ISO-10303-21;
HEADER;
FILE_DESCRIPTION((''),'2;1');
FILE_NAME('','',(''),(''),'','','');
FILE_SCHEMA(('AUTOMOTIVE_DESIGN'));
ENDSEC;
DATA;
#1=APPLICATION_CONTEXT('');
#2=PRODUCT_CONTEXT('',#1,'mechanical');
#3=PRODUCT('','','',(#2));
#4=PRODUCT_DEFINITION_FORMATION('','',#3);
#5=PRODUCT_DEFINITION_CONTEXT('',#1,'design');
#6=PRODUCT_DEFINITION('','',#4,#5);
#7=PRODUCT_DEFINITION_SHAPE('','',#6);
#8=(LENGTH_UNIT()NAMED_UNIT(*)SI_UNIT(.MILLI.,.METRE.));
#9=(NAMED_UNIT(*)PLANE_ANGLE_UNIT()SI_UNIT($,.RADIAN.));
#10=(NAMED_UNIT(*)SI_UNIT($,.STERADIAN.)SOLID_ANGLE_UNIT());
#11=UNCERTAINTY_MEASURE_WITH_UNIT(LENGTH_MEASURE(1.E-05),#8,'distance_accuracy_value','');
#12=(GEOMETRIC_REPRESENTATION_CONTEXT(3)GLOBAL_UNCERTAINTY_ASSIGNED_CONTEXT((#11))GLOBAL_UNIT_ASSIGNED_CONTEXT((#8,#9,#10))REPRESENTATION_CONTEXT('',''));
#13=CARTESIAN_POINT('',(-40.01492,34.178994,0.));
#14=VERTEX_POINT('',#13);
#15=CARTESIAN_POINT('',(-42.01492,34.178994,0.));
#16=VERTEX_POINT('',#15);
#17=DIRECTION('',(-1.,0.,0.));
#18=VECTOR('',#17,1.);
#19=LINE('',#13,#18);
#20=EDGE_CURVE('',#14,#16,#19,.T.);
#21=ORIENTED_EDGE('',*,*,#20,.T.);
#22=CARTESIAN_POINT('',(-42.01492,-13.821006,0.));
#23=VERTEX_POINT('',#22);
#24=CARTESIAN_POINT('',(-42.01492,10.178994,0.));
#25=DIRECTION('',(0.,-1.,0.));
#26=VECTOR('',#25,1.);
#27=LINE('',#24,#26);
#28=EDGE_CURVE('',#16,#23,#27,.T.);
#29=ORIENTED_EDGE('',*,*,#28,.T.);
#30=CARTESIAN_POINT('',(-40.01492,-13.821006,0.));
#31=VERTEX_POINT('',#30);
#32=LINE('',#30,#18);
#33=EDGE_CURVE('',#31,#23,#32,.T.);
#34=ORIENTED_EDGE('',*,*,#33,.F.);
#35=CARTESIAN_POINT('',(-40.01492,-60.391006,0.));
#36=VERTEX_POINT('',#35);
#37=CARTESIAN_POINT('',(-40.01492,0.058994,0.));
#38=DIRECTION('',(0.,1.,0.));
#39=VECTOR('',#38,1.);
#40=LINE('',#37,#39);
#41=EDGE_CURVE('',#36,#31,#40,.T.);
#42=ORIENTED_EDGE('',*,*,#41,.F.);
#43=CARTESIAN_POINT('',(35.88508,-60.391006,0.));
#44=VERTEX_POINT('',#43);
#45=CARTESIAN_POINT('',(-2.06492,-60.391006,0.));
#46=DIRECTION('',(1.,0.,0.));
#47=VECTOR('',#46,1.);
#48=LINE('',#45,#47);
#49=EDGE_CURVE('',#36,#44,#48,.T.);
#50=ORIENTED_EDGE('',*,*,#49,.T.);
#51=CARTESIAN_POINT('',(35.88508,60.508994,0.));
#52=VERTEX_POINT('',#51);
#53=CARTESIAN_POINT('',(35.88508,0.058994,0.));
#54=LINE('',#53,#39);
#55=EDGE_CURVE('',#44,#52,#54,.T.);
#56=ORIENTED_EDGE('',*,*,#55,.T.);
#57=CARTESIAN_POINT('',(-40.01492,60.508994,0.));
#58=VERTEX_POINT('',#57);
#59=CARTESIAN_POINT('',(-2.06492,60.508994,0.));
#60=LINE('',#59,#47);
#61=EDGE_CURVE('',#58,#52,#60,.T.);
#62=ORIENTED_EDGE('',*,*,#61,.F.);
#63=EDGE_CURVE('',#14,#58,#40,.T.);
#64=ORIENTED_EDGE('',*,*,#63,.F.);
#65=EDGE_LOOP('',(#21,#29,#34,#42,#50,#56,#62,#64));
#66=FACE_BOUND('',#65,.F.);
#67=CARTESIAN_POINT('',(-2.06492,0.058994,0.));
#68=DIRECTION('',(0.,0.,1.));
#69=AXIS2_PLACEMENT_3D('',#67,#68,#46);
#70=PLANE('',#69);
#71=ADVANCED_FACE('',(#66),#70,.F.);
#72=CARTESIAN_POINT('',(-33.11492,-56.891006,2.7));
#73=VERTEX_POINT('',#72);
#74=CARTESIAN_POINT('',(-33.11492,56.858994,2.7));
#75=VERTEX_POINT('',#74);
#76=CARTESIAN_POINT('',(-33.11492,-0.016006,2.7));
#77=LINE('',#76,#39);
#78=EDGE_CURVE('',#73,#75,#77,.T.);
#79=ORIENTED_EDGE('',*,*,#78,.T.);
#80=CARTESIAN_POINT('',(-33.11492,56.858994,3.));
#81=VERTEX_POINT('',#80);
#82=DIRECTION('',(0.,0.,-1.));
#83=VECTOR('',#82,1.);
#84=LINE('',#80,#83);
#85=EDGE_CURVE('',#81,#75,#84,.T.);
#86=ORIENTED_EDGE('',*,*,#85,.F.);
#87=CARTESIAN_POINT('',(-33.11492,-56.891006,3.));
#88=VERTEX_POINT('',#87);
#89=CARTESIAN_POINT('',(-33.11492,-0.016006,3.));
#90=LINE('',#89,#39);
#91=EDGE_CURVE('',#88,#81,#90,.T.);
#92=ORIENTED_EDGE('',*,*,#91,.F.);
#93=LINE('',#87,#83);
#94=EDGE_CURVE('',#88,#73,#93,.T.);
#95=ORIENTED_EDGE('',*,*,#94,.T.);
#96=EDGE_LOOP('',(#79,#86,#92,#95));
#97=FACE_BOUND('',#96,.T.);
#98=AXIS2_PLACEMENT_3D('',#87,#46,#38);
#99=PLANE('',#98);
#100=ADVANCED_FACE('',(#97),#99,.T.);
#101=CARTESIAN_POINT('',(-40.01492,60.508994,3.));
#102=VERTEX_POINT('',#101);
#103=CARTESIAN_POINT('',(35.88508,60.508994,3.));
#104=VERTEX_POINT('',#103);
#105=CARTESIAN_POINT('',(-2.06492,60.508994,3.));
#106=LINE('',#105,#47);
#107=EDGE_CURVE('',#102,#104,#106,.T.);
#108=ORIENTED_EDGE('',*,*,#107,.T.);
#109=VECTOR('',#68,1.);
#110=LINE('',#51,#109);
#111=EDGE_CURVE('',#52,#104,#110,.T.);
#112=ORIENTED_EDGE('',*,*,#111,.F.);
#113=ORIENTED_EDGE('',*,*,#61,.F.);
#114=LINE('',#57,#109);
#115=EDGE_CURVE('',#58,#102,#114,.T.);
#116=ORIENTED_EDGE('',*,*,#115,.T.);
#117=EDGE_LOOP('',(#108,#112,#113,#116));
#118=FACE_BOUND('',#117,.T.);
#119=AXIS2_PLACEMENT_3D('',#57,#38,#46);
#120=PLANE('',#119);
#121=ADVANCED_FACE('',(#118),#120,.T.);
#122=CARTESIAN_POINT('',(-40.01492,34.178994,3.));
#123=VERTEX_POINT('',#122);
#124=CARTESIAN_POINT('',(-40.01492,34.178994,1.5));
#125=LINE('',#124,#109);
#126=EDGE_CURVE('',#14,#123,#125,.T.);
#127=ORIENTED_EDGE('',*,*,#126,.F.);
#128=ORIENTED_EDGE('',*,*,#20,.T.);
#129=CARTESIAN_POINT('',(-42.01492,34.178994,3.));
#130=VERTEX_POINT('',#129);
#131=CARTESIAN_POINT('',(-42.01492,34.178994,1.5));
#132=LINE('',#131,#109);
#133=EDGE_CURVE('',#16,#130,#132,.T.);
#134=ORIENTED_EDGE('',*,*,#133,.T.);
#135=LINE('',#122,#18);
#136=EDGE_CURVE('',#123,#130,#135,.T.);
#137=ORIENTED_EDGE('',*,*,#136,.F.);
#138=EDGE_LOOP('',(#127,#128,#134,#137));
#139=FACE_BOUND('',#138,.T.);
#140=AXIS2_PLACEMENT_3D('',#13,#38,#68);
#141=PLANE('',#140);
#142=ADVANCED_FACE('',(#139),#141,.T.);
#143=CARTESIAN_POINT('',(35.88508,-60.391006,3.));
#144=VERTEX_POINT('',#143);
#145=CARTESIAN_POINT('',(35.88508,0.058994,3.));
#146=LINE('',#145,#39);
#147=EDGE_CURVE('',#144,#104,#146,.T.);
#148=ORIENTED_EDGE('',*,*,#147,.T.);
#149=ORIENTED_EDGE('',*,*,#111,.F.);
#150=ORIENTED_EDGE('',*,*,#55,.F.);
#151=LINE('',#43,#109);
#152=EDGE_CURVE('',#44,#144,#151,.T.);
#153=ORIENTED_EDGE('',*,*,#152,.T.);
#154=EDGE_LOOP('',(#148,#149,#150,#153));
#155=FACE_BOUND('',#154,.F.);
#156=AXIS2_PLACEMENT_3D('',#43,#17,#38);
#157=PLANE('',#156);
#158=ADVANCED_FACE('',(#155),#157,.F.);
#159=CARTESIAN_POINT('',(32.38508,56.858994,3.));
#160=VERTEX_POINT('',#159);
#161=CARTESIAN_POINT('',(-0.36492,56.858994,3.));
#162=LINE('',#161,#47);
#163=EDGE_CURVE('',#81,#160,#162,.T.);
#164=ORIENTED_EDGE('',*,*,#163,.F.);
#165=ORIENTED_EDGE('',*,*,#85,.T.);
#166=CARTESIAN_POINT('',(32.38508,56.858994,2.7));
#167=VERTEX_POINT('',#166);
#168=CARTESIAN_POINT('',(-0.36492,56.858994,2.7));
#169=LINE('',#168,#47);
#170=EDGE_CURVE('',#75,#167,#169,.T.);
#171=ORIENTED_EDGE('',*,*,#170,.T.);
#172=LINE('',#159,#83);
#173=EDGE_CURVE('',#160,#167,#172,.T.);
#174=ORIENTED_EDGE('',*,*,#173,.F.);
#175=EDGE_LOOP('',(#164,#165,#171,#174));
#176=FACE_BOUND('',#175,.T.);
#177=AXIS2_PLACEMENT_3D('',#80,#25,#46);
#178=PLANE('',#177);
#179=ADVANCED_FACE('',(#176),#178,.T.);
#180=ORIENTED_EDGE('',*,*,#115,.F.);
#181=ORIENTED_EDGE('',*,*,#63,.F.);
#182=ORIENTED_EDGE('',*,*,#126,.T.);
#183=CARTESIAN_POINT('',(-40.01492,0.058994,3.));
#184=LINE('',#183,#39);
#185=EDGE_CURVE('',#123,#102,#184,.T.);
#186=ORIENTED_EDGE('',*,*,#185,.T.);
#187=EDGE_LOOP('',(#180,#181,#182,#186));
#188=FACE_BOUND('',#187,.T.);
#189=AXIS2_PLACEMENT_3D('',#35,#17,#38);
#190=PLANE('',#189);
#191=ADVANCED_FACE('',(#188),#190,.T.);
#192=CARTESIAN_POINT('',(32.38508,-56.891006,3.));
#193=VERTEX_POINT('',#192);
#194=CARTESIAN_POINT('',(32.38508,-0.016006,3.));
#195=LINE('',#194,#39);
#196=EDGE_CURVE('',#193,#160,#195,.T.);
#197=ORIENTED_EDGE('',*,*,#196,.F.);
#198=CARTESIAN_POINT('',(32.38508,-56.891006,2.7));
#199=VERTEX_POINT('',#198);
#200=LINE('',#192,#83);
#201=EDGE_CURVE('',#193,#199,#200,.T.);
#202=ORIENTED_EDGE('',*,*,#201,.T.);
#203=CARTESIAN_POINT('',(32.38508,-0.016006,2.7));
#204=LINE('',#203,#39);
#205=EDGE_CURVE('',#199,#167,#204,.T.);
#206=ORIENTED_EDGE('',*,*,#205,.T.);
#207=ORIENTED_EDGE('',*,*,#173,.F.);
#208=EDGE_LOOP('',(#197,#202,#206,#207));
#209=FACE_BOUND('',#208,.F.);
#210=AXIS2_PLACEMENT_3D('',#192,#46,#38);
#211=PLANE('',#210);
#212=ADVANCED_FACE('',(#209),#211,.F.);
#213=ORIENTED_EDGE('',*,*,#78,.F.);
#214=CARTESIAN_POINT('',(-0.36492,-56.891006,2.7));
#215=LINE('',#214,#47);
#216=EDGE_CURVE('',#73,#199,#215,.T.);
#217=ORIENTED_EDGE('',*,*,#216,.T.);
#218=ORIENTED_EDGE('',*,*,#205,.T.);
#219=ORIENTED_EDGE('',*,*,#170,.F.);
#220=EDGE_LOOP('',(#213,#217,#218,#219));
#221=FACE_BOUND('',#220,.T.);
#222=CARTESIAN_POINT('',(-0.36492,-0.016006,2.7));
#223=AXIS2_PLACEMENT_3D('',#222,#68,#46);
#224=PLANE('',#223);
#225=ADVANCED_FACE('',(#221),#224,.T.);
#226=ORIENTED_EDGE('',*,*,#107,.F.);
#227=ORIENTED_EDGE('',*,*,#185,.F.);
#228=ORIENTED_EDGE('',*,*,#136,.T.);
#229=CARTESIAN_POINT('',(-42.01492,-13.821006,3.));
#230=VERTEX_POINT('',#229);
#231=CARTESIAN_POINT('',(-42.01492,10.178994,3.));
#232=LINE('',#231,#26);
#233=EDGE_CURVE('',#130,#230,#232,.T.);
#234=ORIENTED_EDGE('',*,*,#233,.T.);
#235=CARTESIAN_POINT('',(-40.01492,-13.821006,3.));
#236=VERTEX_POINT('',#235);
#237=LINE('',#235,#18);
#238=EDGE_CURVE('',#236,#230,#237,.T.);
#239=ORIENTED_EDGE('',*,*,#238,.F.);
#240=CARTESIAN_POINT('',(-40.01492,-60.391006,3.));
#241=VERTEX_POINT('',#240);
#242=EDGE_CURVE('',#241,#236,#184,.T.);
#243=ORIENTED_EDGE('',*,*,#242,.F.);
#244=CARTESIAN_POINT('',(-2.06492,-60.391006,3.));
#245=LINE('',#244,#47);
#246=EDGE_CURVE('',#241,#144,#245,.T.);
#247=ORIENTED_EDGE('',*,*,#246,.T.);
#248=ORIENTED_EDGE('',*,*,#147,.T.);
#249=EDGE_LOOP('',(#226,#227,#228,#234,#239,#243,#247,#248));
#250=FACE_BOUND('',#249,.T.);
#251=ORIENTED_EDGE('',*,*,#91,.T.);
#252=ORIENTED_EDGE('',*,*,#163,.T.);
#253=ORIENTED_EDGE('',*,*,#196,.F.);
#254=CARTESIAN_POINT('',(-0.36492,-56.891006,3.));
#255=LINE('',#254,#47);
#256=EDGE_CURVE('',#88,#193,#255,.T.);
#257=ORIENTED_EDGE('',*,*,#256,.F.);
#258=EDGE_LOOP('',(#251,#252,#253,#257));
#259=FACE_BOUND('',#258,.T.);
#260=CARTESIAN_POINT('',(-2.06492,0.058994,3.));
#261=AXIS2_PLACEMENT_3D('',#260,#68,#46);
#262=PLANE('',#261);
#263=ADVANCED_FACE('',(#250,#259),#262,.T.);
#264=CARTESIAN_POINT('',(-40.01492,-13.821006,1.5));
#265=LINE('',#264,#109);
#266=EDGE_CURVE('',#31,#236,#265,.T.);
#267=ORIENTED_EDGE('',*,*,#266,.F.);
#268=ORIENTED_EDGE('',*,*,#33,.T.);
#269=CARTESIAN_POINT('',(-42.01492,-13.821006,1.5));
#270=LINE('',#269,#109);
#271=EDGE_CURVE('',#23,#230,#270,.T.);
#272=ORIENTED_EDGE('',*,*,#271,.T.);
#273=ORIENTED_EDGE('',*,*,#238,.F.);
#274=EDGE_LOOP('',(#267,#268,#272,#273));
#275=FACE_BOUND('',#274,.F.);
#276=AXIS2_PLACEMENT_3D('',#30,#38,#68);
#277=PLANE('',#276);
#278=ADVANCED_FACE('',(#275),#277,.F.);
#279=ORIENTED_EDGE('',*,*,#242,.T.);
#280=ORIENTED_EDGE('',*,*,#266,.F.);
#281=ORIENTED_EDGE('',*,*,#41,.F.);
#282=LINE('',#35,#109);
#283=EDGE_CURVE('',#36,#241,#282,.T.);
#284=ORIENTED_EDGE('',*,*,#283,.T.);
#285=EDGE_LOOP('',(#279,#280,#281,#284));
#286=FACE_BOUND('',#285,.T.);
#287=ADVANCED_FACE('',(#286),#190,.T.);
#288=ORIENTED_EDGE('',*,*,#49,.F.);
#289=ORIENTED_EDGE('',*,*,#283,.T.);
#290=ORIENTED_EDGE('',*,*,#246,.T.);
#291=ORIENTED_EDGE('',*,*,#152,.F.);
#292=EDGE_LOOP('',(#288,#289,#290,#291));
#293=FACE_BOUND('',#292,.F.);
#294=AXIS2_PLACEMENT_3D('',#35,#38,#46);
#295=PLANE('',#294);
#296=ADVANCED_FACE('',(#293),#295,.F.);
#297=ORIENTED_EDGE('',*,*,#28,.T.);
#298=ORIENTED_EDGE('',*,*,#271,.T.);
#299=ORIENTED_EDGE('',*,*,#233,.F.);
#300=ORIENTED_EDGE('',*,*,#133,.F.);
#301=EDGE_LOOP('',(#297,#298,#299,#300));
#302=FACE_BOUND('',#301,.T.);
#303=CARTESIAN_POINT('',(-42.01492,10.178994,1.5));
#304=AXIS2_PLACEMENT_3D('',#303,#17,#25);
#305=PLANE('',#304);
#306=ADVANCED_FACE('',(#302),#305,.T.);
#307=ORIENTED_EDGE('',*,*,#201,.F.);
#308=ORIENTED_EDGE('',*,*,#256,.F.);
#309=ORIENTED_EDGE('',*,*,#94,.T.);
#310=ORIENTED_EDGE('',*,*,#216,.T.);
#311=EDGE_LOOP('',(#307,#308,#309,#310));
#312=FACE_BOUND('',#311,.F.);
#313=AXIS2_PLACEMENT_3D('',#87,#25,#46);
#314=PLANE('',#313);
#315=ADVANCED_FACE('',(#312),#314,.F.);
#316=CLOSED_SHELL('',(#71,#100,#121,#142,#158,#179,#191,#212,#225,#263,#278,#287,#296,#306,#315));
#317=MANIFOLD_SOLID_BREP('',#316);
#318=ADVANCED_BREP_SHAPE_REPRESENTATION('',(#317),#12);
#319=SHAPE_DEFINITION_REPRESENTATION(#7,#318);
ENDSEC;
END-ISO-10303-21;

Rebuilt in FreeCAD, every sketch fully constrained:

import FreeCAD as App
import Part
import Sketcher
Q = App.Units.Quantity

doc = App.newDocument("Part")
body = doc.addObject("PartDesign::Body", "Body")

# Sketch on XY plane
sketch1 = body.newObject("Sketcher::SketchObject", "Sketch")
sketch1.AttachmentSupport = (doc.getObject("XY_Plane"), [""])
sketch1.MapMode = "FlatFace"
sketch1.addGeometry([
    Part.LineSegment(App.Vector(-40, 61, 0), App.Vector(-40, -60, 0)),
    Part.LineSegment(App.Vector(-40, -60, 0), App.Vector(36, -60, 0)),
    Part.LineSegment(App.Vector(36, -60, 0), App.Vector(36, 61, 0)),
    Part.LineSegment(App.Vector(36, 61, 0), App.Vector(-40, 61, 0)),
], False)
sketch1.addConstraint([
    Sketcher.Constraint("Coincident", 0, 2, 1, 1),
    Sketcher.Constraint("Coincident", 1, 2, 2, 1),
    Sketcher.Constraint("Coincident", 2, 2, 3, 1),
    Sketcher.Constraint("Coincident", 3, 2, 0, 1),
    Sketcher.Constraint("Vertical", 0),
    Sketcher.Constraint("Horizontal", 1),
    Sketcher.Constraint("Vertical", 2),
    Sketcher.Constraint("Horizontal", 3),
    Sketcher.Constraint("DistanceX", 1, 1, 1, 2, Q("75.9 mm")),
    Sketcher.Constraint("DistanceY", 0, 2, 0, 1, Q("120.9 mm")),
    Sketcher.Constraint("DistanceX", 0, 2, -1, 1, Q("40.01492 mm")),
    Sketcher.Constraint("DistanceY", 0, 2, -1, 1, Q("60.391006 mm")),
])
pad1 = body.newObject("PartDesign::Pad", "Pad")
pad1.Profile = sketch1
pad1.Length = 3

# Sketch on XY plane
sketch2 = body.newObject("Sketcher::SketchObject", "Sketch001")
sketch2.AttachmentSupport = (doc.getObject("XY_Plane"), [""])
sketch2.MapMode = "FlatFace"
sketch2.AttachmentOffset = App.Placement(App.Vector(0, 0, 3), App.Rotation())
sketch2.addGeometry([
    Part.LineSegment(App.Vector(-33, 57, 0), App.Vector(-33, -57, 0)),
    Part.LineSegment(App.Vector(-33, -57, 0), App.Vector(32, -57, 0)),
    Part.LineSegment(App.Vector(32, -57, 0), App.Vector(32, 57, 0)),
    Part.LineSegment(App.Vector(32, 57, 0), App.Vector(-33, 57, 0)),
], False)
sketch2.addConstraint([
    Sketcher.Constraint("Coincident", 0, 2, 1, 1),
    Sketcher.Constraint("Coincident", 1, 2, 2, 1),
    Sketcher.Constraint("Coincident", 2, 2, 3, 1),
    Sketcher.Constraint("Coincident", 3, 2, 0, 1),
    Sketcher.Constraint("Vertical", 0),
    Sketcher.Constraint("Horizontal", 1),
    Sketcher.Constraint("Vertical", 2),
    Sketcher.Constraint("Horizontal", 3),
    Sketcher.Constraint("DistanceX", 1, 1, 1, 2, Q("65.5 mm")),
    Sketcher.Constraint("DistanceY", 0, 2, 0, 1, Q("113.75 mm")),
    Sketcher.Constraint("DistanceX", 0, 2, -1, 1, Q("33.11492 mm")),
    Sketcher.Constraint("DistanceY", 0, 2, -1, 1, Q("56.891006 mm")),
])
pocket1 = body.newObject("PartDesign::Pocket", "Pocket")
pocket1.Profile = sketch2
pocket1.Length = 0.3

# Sketch on YZ plane
sketch3 = body.newObject("Sketcher::SketchObject", "Sketch002")
sketch3.AttachmentSupport = (doc.getObject("YZ_Plane"), [""])
sketch3.MapMode = "FlatFace"
sketch3.AttachmentOffset = App.Placement(App.Vector(0, 0, -40.01492), App.Rotation())
sketch3.addGeometry([
    Part.LineSegment(App.Vector(34.2, 3, 0), App.Vector(34.2, 0, 0)),
    Part.LineSegment(App.Vector(34.2, 0, 0), App.Vector(-13.8, 0, 0)),
    Part.LineSegment(App.Vector(-13.8, 0, 0), App.Vector(-13.8, 3, 0)),
    Part.LineSegment(App.Vector(-13.8, 3, 0), App.Vector(34.2, 3, 0)),
], False)
sketch3.addConstraint([
    Sketcher.Constraint("Coincident", 0, 2, 1, 1),
    Sketcher.Constraint("Coincident", 1, 2, 2, 1),
    Sketcher.Constraint("Coincident", 2, 2, 3, 1),
    Sketcher.Constraint("Coincident", 3, 2, 0, 1),
    Sketcher.Constraint("Vertical", 0),
    Sketcher.Constraint("Horizontal", 1),
    Sketcher.Constraint("Vertical", 2),
    Sketcher.Constraint("Horizontal", 3),
    Sketcher.Constraint("PointOnObject", 0, 2, -1),
    Sketcher.Constraint("DistanceX", 1, 2, 1, 1, Q("48 mm")),
    Sketcher.Constraint("DistanceY", 0, 2, 0, 1, Q("3 mm")),
    Sketcher.Constraint("DistanceX", -1, 1, 0, 2, Q("34.178994 mm")),
])
pad2 = body.newObject("PartDesign::Pad", "Pad001")
pad2.Profile = sketch3
pad2.Length = 2
pad2.Reversed = True

doc.recompute()
